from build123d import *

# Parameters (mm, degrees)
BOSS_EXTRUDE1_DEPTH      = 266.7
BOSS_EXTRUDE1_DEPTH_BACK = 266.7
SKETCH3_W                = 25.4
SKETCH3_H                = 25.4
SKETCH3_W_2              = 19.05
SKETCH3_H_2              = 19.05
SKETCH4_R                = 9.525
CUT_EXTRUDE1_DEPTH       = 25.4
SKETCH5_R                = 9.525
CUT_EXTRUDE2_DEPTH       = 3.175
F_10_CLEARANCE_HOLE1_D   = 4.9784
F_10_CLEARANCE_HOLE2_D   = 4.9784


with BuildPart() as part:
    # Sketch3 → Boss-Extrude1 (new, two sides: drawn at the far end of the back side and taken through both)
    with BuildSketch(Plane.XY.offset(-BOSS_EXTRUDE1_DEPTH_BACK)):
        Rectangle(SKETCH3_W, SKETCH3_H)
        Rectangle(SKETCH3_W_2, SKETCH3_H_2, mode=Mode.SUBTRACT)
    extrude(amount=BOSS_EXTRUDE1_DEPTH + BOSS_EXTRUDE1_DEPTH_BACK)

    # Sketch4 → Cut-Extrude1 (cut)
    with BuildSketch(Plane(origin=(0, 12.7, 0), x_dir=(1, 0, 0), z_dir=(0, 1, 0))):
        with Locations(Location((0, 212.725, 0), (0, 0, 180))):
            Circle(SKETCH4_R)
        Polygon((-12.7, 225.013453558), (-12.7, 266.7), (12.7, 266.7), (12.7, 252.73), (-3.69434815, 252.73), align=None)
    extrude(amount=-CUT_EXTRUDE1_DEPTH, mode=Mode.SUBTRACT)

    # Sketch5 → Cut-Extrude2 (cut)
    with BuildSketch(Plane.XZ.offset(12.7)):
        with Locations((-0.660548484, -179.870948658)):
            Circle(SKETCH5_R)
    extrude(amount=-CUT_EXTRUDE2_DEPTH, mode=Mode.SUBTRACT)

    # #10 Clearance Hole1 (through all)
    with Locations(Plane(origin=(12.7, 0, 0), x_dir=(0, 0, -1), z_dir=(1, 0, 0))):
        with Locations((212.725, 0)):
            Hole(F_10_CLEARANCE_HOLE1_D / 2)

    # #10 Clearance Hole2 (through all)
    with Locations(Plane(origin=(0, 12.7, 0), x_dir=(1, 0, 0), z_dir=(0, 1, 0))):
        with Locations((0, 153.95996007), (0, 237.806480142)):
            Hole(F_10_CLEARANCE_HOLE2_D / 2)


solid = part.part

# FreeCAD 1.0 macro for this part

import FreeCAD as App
import Part
import Sketcher
from FreeCAD import Vector
Q = App.Units.Quantity

doc = App.newDocument("Part")
body = doc.addObject("PartDesign::Body", "Body")

# Sketch on XY plane
sketch1 = body.newObject("Sketcher::SketchObject", "Sketch")
sketch1.AttachmentSupport = (doc.getObject("XY_Plane"), [""])
sketch1.MapMode = "FlatFace"
sketch1.addGeometry(Part.LineSegment(Vector(-13, 13, 0), Vector(-13, -13, 0)), False)
sketch1.addGeometry(Part.LineSegment(Vector(-13, -13, 0), Vector(13, -13, 0)), False)
sketch1.addGeometry(Part.LineSegment(Vector(13, -13, 0), Vector(13, 13, 0)), False)
sketch1.addGeometry(Part.LineSegment(Vector(13, 13, 0), Vector(-13, 13, 0)), False)
sketch1.addGeometry(Part.LineSegment(Vector(10, -10, 0), Vector(-10, -10, 0)), False)
sketch1.addGeometry(Part.LineSegment(Vector(-10, -10, 0), Vector(-10, 10, 0)), False)
sketch1.addGeometry(Part.LineSegment(Vector(-10, 10, 0), Vector(10, 10, 0)), False)
sketch1.addGeometry(Part.LineSegment(Vector(10, 10, 0), Vector(10, -10, 0)), False)
sketch1.addConstraint(Sketcher.Constraint("Coincident", 0, 2, 1, 1))
sketch1.addConstraint(Sketcher.Constraint("Coincident", 1, 2, 2, 1))
sketch1.addConstraint(Sketcher.Constraint("Coincident", 2, 2, 3, 1))
sketch1.addConstraint(Sketcher.Constraint("Coincident", 3, 2, 0, 1))
sketch1.addConstraint(Sketcher.Constraint("Coincident", 4, 2, 5, 1))
sketch1.addConstraint(Sketcher.Constraint("Coincident", 5, 2, 6, 1))
sketch1.addConstraint(Sketcher.Constraint("Coincident", 6, 2, 7, 1))
sketch1.addConstraint(Sketcher.Constraint("Coincident", 7, 2, 4, 1))
sketch1.addConstraint(Sketcher.Constraint("Vertical", 0))
sketch1.addConstraint(Sketcher.Constraint("Horizontal", 1))
sketch1.addConstraint(Sketcher.Constraint("Vertical", 2))
sketch1.addConstraint(Sketcher.Constraint("Horizontal", 3))
sketch1.addConstraint(Sketcher.Constraint("Horizontal", 4))
sketch1.addConstraint(Sketcher.Constraint("Vertical", 5))
sketch1.addConstraint(Sketcher.Constraint("Horizontal", 6))
sketch1.addConstraint(Sketcher.Constraint("Vertical", 7))
sketch1.addConstraint(Sketcher.Constraint("Symmetric", 0, 2, 2, 2, -1, 1))
sketch1.addConstraint(Sketcher.Constraint("Symmetric", 4, 2, 6, 2, -1, 1))
sketch1.addConstraint(Sketcher.Constraint("Equal", 3, 0))
sketch1.addConstraint(Sketcher.Constraint("Equal", 6, 5))
sketch1.addConstraint(Sketcher.Constraint("DistanceX", 1, 1, 1, 2, Q("1 in")))
sketch1.addConstraint(Sketcher.Constraint("DistanceX", 4, 2, 4, 1, Q("0.75 in")))
pad1 = body.newObject("PartDesign::Pad", "Pad")
pad1.Profile = sketch1
pad1.Type = "TwoLengths"
pad1.Length = Q("10.5 in")
pad1.Length2 = Q("10.5 in")

# Sketch on XZ plane
sketch2 = body.newObject("Sketcher::SketchObject", "Sketch001")
sketch2.AttachmentSupport = (doc.getObject("XZ_Plane"), [""])
sketch2.MapMode = "FlatFace"
sketch2.AttachmentOffset = App.Placement(Vector(0, 0, -0.5 * 25.4), App.Rotation())
sketch2.addGeometry(Part.Circle(Vector(0, -213, 0), Vector(0, 0, 1), 10), False)
sketch2.addGeometry(Part.LineSegment(Vector(-13, -267, 0), Vector(-13, -225, 0)), False)
sketch2.addGeometry(Part.LineSegment(Vector(-13, -225, 0), Vector(-4, -253, 0)), False)
sketch2.addGeometry(Part.LineSegment(Vector(-4, -253, 0), Vector(13, -253, 0)), False)
sketch2.addGeometry(Part.LineSegment(Vector(13, -253, 0), Vector(13, -267, 0)), False)
sketch2.addGeometry(Part.LineSegment(Vector(13, -267, 0), Vector(-13, -267, 0)), False)
sketch2.addConstraint(Sketcher.Constraint("Coincident", 1, 2, 2, 1))
sketch2.addConstraint(Sketcher.Constraint("Coincident", 2, 2, 3, 1))
sketch2.addConstraint(Sketcher.Constraint("Coincident", 3, 2, 4, 1))
sketch2.addConstraint(Sketcher.Constraint("Coincident", 4, 2, 5, 1))
sketch2.addConstraint(Sketcher.Constraint("Coincident", 5, 2, 1, 1))
sketch2.addConstraint(Sketcher.Constraint("Vertical", 1))
sketch2.addConstraint(Sketcher.Constraint("Horizontal", 3))
sketch2.addConstraint(Sketcher.Constraint("Vertical", 4))
sketch2.addConstraint(Sketcher.Constraint("Horizontal", 5))
sketch2.addConstraint(Sketcher.Constraint("PointOnObject", 0, 3, -2))
sketch2.addConstraint(Sketcher.Constraint("Diameter", 0, Q("0.75 in")))
sketch2.addConstraint(Sketcher.Constraint("DistanceX", 5, 2, 5, 1, Q("1 in")))
sketch2.addConstraint(Sketcher.Constraint("Angle", 2, Q("-72 deg")))
sketch2.addConstraint(Sketcher.Constraint("DistanceY", 4, 2, 4, 1, Q("0.55 in")))
sketch2.addConstraint(Sketcher.Constraint("DistanceX", 1, 2, -1, 1, Q("0.5 in")))
sketch2.addConstraint(Sketcher.Constraint("DistanceY", 4, 2, -1, 1, Q("10.5 in")))
sketch2.addConstraint(Sketcher.Constraint("DistanceY", 0, 3, -1, 1, Q("8.375 in")))
sketch2.addConstraint(Sketcher.Constraint("Distance", 2, 29.142902))
pocket1 = body.newObject("PartDesign::Pocket", "Pocket")
pocket1.Profile = sketch2
pocket1.Length = Q("1 in")
pocket1.Reversed = True

# Sketch on XZ plane
sketch3 = body.newObject("Sketcher::SketchObject", "Sketch002")
sketch3.AttachmentSupport = (doc.getObject("XZ_Plane"), [""])
sketch3.MapMode = "FlatFace"
sketch3.AttachmentOffset = App.Placement(Vector(0, 0, 0.5 * 25.4), App.Rotation())
sketch3.addGeometry(Part.Circle(Vector(-1, -180, 0), Vector(0, 0, 1), 10), False)
sketch3.addConstraint(Sketcher.Constraint("Diameter", 0, Q("0.75 in")))
sketch3.addConstraint(Sketcher.Constraint("DistanceX", 0, 3, -1, 1, 0.660548))
sketch3.addConstraint(Sketcher.Constraint("DistanceY", 0, 3, -1, 1, 179.870949))
pocket2 = body.newObject("PartDesign::Pocket", "Pocket001")
pocket2.Profile = sketch3
pocket2.Length = Q("0.125 in")

# Sketch on YZ plane
sketch4 = body.newObject("Sketcher::SketchObject", "Sketch003")
sketch4.AttachmentSupport = (doc.getObject("YZ_Plane"), [""])
sketch4.MapMode = "FlatFace"
sketch4.AttachmentOffset = App.Placement(Vector(0, 0, 0.5 * 25.4), App.Rotation())
sketch4.addGeometry(Part.Circle(Vector(0, -212.7, 0), Vector(0, 0, 1), 2.5), False)
sketch4.addConstraint(Sketcher.Constraint("PointOnObject", 0, 3, -2))
sketch4.addConstraint(Sketcher.Constraint("Diameter", 0, Q("0.196 in")))
sketch4.addConstraint(Sketcher.Constraint("DistanceY", 0, 3, -1, 1, Q("8.375 in")))
doc.recompute()
hole = body.newObject("PartDesign::Hole", "Hole")
hole.Profile = sketch4
hole.ThreadType = "None"
hole.Diameter = Q("0.196 in")
hole.DepthType = "ThroughAll"

# Sketch on XZ plane
sketch5 = body.newObject("Sketcher::SketchObject", "Sketch004")
sketch5.AttachmentSupport = (doc.getObject("XZ_Plane"), [""])
sketch5.MapMode = "FlatFace"
sketch5.AttachmentOffset = App.Placement(Vector(0, 0, -0.5 * 25.4), App.Rotation())
sketch5.addGeometry(Part.Circle(Vector(0, -154, 0), Vector(0, 0, 1), 2.5), False)
sketch5.addGeometry(Part.Circle(Vector(0, -237.8, 0), Vector(0, 0, 1), 2.5), False)
sketch5.addConstraint(Sketcher.Constraint("Equal", 0, 1))
sketch5.addConstraint(Sketcher.Constraint("PointOnObject", 0, 3, -2))
sketch5.addConstraint(Sketcher.Constraint("PointOnObject", 1, 3, -2))
sketch5.addConstraint(Sketcher.Constraint("Diameter", 0, Q("0.196 in")))
sketch5.addConstraint(Sketcher.Constraint("DistanceY", 0, 3, -1, 1, 153.95996))
sketch5.addConstraint(Sketcher.Constraint("DistanceY", 1, 3, -1, 1, 237.80648))
doc.recompute()
hole2 = body.newObject("PartDesign::Hole", "Hole001")
hole2.Profile = sketch5
hole2.ThreadType = "None"
hole2.Diameter = Q("0.196 in")
hole2.DepthType = "ThroughAll"
hole2.Reversed = True

doc.recompute()
